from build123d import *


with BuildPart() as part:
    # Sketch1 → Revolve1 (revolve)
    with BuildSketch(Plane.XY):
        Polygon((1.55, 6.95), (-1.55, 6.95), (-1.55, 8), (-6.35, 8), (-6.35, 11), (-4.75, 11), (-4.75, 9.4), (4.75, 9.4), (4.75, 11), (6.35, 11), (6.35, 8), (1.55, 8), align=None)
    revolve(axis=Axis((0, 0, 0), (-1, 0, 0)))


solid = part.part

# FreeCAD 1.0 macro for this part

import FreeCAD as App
import Part
import Sketcher
Q = App.Units.Quantity

doc = App.newDocument("Part")
body = doc.addObject("PartDesign::Body", "Body")

# Sketch on XY plane
sketch1 = body.newObject("Sketcher::SketchObject", "Sketch")
sketch1.AttachmentSupport = (doc.getObject("XY_Plane"), [""])
sketch1.MapMode = "FlatFace"
sketch1.addGeometry(Part.LineSegment(App.Vector(-1.6, 7, 0), App.Vector(1.6, 7, 0)), False)
sketch1.addGeometry(Part.LineSegment(App.Vector(1.6, 7, 0), App.Vector(1.6, 8, 0)), False)
sketch1.addGeometry(Part.LineSegment(App.Vector(1.6, 8, 0), App.Vector(6.3, 8, 0)), False)
sketch1.addGeometry(Part.LineSegment(App.Vector(6.3, 8, 0), App.Vector(6.3, 11, 0)), False)
sketch1.addGeometry(Part.LineSegment(App.Vector(6.3, 11, 0), App.Vector(4.8, 11, 0)), False)
sketch1.addGeometry(Part.LineSegment(App.Vector(4.8, 11, 0), App.Vector(4.8, 9.4, 0)), False)
sketch1.addGeometry(Part.LineSegment(App.Vector(4.8, 9.4, 0), App.Vector(-4.8, 9.4, 0)), False)
sketch1.addGeometry(Part.LineSegment(App.Vector(-4.8, 9.4, 0), App.Vector(-4.8, 11, 0)), False)
sketch1.addGeometry(Part.LineSegment(App.Vector(-4.8, 11, 0), App.Vector(-6.3, 11, 0)), False)
sketch1.addGeometry(Part.LineSegment(App.Vector(-6.3, 11, 0), App.Vector(-6.3, 8, 0)), False)
sketch1.addGeometry(Part.LineSegment(App.Vector(-6.3, 8, 0), App.Vector(-1.6, 8, 0)), False)
sketch1.addGeometry(Part.LineSegment(App.Vector(-1.6, 8, 0), App.Vector(-1.6, 7, 0)), False)
sketch1.addConstraint(Sketcher.Constraint("Coincident", 0, 2, 1, 1))
sketch1.addConstraint(Sketcher.Constraint("Coincident", 1, 2, 2, 1))
sketch1.addConstraint(Sketcher.Constraint("Coincident", 2, 2, 3, 1))
sketch1.addConstraint(Sketcher.Constraint("Coincident", 3, 2, 4, 1))
sketch1.addConstraint(Sketcher.Constraint("Coincident", 4, 2, 5, 1))
sketch1.addConstraint(Sketcher.Constraint("Coincident", 5, 2, 6, 1))
sketch1.addConstraint(Sketcher.Constraint("Coincident", 6, 2, 7, 1))
sketch1.addConstraint(Sketcher.Constraint("Coincident", 7, 2, 8, 1))
sketch1.addConstraint(Sketcher.Constraint("Coincident", 8, 2, 9, 1))
sketch1.addConstraint(Sketcher.Constraint("Coincident", 9, 2, 10, 1))
sketch1.addConstraint(Sketcher.Constraint("Coincident", 10, 2, 11, 1))
sketch1.addConstraint(Sketcher.Constraint("Coincident", 11, 2, 0, 1))
sketch1.addConstraint(Sketcher.Constraint("Horizontal", 0))
sketch1.addConstraint(Sketcher.Constraint("Vertical", 1))
sketch1.addConstraint(Sketcher.Constraint("Horizontal", 2))
sketch1.addConstraint(Sketcher.Constraint("Vertical", 3))
sketch1.addConstraint(Sketcher.Constraint("Horizontal", 4))
sketch1.addConstraint(Sketcher.Constraint("Vertical", 5))
sketch1.addConstraint(Sketcher.Constraint("Horizontal", 6))
sketch1.addConstraint(Sketcher.Constraint("Vertical", 7))
sketch1.addConstraint(Sketcher.Constraint("Horizontal", 8))
sketch1.addConstraint(Sketcher.Constraint("Vertical", 9))
sketch1.addConstraint(Sketcher.Constraint("Horizontal", 10))
sketch1.addConstraint(Sketcher.Constraint("Vertical", 11))
sketch1.addConstraint(Sketcher.Constraint("Symmetric", 4, 2, 7, 2, -2))
sketch1.addConstraint(Sketcher.Constraint("Symmetric", 2, 2, 9, 2, -2))
sketch1.addConstraint(Sketcher.Constraint("Equal", 2, 10))
sketch1.addConstraint(Sketcher.Constraint("Equal", 8, 5))
sketch1.addConstraint(Sketcher.Constraint("DistanceY", 3, 1, 3, 2, Q("3 mm")))
sketch1.addConstraint(Sketcher.Constraint("DistanceX", 0, 1, 0, 2, Q("3.1 mm")))
sketch1.addConstraint(Sketcher.Constraint("DistanceX", 2, 1, 2, 2, Q("4.8 mm")))
sketch1.addConstraint(Sketcher.Constraint("DistanceX", 4, 2, 4, 1, Q("1.6 mm")))
sketch1.addConstraint(Sketcher.Constraint("DistanceY", -1, 1, 1, 2, Q("8 mm")))
sketch1.addConstraint(Sketcher.Constraint("DistanceY", 1, 1, 1, 2, Q("1.05 mm")))
revolution = body.newObject("PartDesign::Revolution", "Revolution")
revolution.Profile = sketch1
revolution.ReferenceAxis = (sketch1, ["H_Axis"])
revolution.Angle = 360

doc.recompute()
